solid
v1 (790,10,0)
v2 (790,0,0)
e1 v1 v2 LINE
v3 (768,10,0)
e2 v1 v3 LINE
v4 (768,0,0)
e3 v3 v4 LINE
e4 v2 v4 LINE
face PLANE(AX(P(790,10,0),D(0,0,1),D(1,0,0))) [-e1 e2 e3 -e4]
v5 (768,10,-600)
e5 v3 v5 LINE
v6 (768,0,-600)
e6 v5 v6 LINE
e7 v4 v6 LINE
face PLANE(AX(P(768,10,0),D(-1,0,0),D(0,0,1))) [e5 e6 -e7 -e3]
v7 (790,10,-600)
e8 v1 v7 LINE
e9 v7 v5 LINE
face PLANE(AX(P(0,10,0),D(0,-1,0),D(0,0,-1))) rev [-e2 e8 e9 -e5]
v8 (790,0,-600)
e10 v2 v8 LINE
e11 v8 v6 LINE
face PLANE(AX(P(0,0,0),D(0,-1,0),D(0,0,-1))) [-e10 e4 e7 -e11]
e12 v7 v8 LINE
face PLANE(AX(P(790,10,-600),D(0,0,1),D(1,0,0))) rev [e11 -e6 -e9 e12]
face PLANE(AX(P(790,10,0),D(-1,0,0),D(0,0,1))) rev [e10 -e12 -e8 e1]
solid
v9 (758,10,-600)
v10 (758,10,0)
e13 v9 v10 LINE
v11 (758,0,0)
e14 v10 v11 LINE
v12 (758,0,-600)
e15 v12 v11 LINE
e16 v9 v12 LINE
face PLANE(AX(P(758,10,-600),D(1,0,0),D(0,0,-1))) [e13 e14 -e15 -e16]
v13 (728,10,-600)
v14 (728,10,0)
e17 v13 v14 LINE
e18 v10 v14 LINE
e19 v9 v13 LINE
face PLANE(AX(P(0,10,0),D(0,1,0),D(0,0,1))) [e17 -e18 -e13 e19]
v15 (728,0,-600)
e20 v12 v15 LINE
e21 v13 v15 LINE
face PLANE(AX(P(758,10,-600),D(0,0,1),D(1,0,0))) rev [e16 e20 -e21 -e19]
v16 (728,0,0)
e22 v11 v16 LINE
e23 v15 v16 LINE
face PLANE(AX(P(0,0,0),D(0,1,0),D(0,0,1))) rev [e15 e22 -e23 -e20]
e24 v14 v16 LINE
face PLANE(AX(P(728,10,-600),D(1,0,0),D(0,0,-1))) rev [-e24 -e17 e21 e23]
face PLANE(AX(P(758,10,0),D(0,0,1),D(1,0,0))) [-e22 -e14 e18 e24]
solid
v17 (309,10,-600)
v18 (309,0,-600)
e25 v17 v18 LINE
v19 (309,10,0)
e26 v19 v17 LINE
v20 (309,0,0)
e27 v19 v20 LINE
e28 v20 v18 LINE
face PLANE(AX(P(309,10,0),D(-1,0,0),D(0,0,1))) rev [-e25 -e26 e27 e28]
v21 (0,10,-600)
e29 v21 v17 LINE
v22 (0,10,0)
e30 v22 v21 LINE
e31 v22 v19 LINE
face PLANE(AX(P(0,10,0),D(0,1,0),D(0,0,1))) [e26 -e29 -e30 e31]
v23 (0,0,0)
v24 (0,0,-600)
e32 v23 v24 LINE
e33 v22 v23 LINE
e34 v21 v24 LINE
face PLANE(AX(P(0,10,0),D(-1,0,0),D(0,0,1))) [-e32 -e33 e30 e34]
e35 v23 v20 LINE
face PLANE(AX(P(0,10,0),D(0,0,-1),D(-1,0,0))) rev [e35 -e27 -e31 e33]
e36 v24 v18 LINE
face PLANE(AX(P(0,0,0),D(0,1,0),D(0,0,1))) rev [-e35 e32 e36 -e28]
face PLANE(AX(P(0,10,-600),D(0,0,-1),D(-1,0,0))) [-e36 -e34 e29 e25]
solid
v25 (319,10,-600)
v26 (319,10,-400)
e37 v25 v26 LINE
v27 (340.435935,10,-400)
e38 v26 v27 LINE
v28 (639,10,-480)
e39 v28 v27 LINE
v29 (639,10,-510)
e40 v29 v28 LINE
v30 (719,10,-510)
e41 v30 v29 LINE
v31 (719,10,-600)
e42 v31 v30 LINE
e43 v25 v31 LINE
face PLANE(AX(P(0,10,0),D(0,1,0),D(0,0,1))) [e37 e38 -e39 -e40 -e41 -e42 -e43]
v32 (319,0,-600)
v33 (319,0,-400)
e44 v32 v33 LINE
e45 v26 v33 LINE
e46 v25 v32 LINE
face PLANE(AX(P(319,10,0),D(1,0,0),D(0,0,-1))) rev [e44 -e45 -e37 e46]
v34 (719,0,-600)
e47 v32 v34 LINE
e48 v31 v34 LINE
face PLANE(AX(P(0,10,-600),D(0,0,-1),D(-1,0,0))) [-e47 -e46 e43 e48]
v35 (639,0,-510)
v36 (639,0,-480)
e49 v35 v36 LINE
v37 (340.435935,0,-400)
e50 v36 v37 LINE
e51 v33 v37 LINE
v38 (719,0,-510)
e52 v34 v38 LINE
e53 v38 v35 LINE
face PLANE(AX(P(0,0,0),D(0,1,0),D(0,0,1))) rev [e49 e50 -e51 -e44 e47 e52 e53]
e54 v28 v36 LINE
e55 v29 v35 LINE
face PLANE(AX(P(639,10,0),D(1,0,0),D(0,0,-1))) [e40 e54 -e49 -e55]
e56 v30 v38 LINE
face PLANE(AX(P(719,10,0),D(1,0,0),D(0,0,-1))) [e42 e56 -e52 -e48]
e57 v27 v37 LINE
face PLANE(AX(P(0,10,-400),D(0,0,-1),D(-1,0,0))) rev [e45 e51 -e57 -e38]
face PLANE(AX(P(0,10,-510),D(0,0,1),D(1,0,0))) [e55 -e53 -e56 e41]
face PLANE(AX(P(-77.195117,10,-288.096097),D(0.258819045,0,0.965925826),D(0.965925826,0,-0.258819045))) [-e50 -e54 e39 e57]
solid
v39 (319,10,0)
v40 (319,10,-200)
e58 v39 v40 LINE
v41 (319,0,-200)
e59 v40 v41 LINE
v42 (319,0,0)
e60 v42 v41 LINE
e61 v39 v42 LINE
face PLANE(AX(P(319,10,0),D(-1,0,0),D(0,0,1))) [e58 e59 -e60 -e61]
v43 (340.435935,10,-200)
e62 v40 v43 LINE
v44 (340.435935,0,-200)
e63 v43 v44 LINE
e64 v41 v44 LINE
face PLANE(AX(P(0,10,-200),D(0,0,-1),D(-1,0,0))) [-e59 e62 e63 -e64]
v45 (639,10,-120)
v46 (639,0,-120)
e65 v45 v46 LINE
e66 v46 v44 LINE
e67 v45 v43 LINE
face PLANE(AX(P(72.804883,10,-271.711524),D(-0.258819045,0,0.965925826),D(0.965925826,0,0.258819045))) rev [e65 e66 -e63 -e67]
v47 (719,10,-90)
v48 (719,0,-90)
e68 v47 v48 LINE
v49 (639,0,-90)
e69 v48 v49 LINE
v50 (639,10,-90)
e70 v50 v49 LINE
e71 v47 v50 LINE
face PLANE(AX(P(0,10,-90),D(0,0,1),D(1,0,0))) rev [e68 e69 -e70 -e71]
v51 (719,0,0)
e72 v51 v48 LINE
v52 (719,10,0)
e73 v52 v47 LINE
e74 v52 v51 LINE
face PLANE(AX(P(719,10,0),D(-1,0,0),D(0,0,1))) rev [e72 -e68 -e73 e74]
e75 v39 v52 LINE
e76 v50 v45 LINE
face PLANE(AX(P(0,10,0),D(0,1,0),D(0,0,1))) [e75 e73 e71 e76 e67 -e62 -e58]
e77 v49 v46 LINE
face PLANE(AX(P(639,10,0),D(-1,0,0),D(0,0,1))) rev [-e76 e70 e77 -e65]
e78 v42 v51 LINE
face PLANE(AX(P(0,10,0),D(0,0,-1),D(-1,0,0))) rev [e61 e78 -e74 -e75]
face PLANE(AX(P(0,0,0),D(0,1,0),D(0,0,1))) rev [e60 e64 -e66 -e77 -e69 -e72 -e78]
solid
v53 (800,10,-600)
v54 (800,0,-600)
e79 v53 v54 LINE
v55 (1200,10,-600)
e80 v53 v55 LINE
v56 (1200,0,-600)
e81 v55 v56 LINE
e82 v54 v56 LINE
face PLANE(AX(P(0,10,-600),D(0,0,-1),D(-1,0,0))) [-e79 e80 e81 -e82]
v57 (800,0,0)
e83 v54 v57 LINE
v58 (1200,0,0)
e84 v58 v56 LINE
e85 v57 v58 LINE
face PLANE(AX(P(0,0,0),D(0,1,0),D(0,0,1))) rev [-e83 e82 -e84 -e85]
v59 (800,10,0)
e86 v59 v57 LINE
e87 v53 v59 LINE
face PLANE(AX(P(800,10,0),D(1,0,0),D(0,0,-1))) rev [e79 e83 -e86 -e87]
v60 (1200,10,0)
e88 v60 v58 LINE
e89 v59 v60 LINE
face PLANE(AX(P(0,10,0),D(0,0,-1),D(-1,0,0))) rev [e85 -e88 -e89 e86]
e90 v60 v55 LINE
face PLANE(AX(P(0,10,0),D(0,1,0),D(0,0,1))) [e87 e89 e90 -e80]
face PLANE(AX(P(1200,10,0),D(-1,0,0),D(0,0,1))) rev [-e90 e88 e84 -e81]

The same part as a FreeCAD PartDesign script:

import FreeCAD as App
import Part
import Sketcher
Q = App.Units.Quantity


def add_polygon(sketch, points):
    """Adds a closed chain of lines whose ends are joined by coincident constraints."""
    first, n = sketch.GeometryCount, len(points)
    for a, b in zip(points, points[1:] + points[:1]):
        sketch.addGeometry(Part.LineSegment(App.Vector(*a, 0), App.Vector(*b, 0)), False)
    for i in range(n):
        sketch.addConstraint(Sketcher.Constraint("Coincident", first + i, 2, first + (i + 1) % n, 1))

doc = App.newDocument("Part")
body = doc.addObject("PartDesign::Body", "Body")

sketch1 = doc.addObject("Sketcher::SketchObject", "Sketch")
body.addObject(sketch1)
sketch1.AttachmentSupport = (doc.XZ_Plane, [""])
sketch1.MapMode = "FlatFace"
add_polygon(sketch1, [(0, -600), (0, 0), (309, 0), (309, -600)])
sketch1.addConstraint([
    Sketcher.Constraint("Vertical", 0),
    Sketcher.Constraint("Horizontal", 1),
    Sketcher.Constraint("Vertical", 2),
    Sketcher.Constraint("Horizontal", 3),
    Sketcher.Constraint("Coincident", 0, 2, -1, 1),
    Sketcher.Constraint("DistanceX", 1, 1, 1, 2, Q("309 mm")),
    Sketcher.Constraint("DistanceY", 0, 1, 0, 2, Q("600 mm")),
])
pad1 = doc.addObject("PartDesign::Pad", "Pad")
body.addObject(pad1)
pad1.Profile = sketch1
pad1.Length = 10
pad1.Reversed = True
body2 = doc.addObject("PartDesign::Body", "Body001")

sketch2 = doc.addObject("Sketcher::SketchObject", "Sketch001")
body2.addObject(sketch2)
sketch2.AttachmentSupport = (doc.getObject("XZ_Plane001"), [""])
sketch2.MapMode = "FlatFace"
add_polygon(sketch2, [(719, -510), (719, -600), (319, -600), (319, -400), (340, -400), (639, -480), (639, -510)])
sketch2.addConstraint([
    Sketcher.Constraint("Vertical", 0),
    Sketcher.Constraint("Horizontal", 1),
    Sketcher.Constraint("Vertical", 2),
    Sketcher.Constraint("Horizontal", 3),
    Sketcher.Constraint("Vertical", 5),
    Sketcher.Constraint("Horizontal", 6),
    Sketcher.Constraint("DistanceX", 1, 2, 1, 1, Q("400 mm")),
    Sketcher.Constraint("DistanceX", 6, 1, 6, 2, Q("80 mm")),
    Sketcher.Constraint("DistanceY", 0, 2, 0, 1, Q("90 mm")),
    Sketcher.Constraint("DistanceY", 2, 1, 2, 2, Q("200 mm")),
    Sketcher.Constraint("DistanceY", 5, 2, 5, 1, Q("30 mm")),
    Sketcher.Constraint("Angle", 4, Q("-15 deg")),
    Sketcher.Constraint("DistanceX", -1, 1, 0, 2, Q("719 mm")),
    Sketcher.Constraint("DistanceY", 0, 2, -1, 1, Q("600 mm")),
])
pad2 = doc.addObject("PartDesign::Pad", "Pad001")
body2.addObject(pad2)
pad2.Profile = sketch2
pad2.Length = 10
pad2.Reversed = True
body3 = doc.addObject("PartDesign::Body", "Body002")

sketch3 = doc.addObject("Sketcher::SketchObject", "Sketch002")
body3.addObject(sketch3)
sketch3.AttachmentSupport = (doc.getObject("XZ_Plane002"), [""])
sketch3.MapMode = "FlatFace"
add_polygon(sketch3, [(800, -600), (800, 0), (1200, 0), (1200, -600)])
sketch3.addConstraint([
    Sketcher.Constraint("Vertical", 0),
    Sketcher.Constraint("Horizontal", 1),
    Sketcher.Constraint("Vertical", 2),
    Sketcher.Constraint("Horizontal", 3),
    Sketcher.Constraint("PointOnObject", 0, 2, -1),
    Sketcher.Constraint("DistanceX", 1, 1, 1, 2, Q("400 mm")),
    Sketcher.Constraint("DistanceY", 0, 1, 0, 2, Q("600 mm")),
    Sketcher.Constraint("DistanceX", -1, 1, 0, 2, Q("800 mm")),
])
pad3 = doc.addObject("PartDesign::Pad", "Pad002")
body3.addObject(pad3)
pad3.Profile = sketch3
pad3.Length = 10
pad3.Reversed = True
body4 = doc.addObject("PartDesign::Body", "Body003")

sketch4 = doc.addObject("Sketcher::SketchObject", "Sketch003")
body4.addObject(sketch4)
sketch4.AttachmentSupport = (doc.getObject("XZ_Plane003"), [""])
sketch4.MapMode = "FlatFace"
add_polygon(sketch4, [(719, 0), (719, -90), (639, -90), (639, -120), (340, -200), (319, -200), (319, 0)])
sketch4.addConstraint([
    Sketcher.Constraint("Vertical", 0),
    Sketcher.Constraint("Horizontal", 1),
    Sketcher.Constraint("Vertical", 2),
    Sketcher.Constraint("Horizontal", 4),
    Sketcher.Constraint("Vertical", 5),
    Sketcher.Constraint("Horizontal", 6),
    Sketcher.Constraint("PointOnObject", 5, 2, -1),
    Sketcher.Constraint("DistanceX", 1, 2, 1, 1, Q("80 mm")),
    Sketcher.Constraint("DistanceX", 6, 1, 6, 2, Q("400 mm")),
    Sketcher.Constraint("DistanceY", 0, 2, 0, 1, Q("90 mm")),
    Sketcher.Constraint("DistanceY", 2, 2, 2, 1, Q("30 mm")),
    Sketcher.Constraint("DistanceY", 5, 1, 5, 2, Q("200 mm")),
    Sketcher.Constraint("Angle", 3, Q("-165 deg")),
    Sketcher.Constraint("DistanceX", -1, 1, 0, 2, Q("719 mm")),
])
pad4 = doc.addObject("PartDesign::Pad", "Pad003")
body4.addObject(pad4)
pad4.Profile = sketch4
pad4.Length = 10
pad4.Reversed = True
body5 = doc.addObject("PartDesign::Body", "Body004")

sketch5 = doc.addObject("Sketcher::SketchObject", "Sketch004")
body5.addObject(sketch5)
sketch5.AttachmentSupport = (doc.getObject("XZ_Plane004"), [""])
sketch5.MapMode = "FlatFace"
add_polygon(sketch5, [(768, -600), (768, 0), (790, 0), (790, -600)])
sketch5.addConstraint([
    Sketcher.Constraint("Vertical", 0),
    Sketcher.Constraint("Horizontal", 1),
    Sketcher.Constraint("Vertical", 2),
    Sketcher.Constraint("Horizontal", 3),
    Sketcher.Constraint("PointOnObject", 0, 2, -1),
    Sketcher.Constraint("DistanceX", 1, 1, 1, 2, Q("22 mm")),
    Sketcher.Constraint("DistanceY", 0, 1, 0, 2, Q("600 mm")),
    Sketcher.Constraint("DistanceX", -1, 1, 0, 2, Q("768 mm")),
])
pad5 = doc.addObject("PartDesign::Pad", "Pad004")
body5.addObject(pad5)
pad5.Profile = sketch5
pad5.Length = 10
pad5.Reversed = True
body6 = doc.addObject("PartDesign::Body", "Body005")

sketch6 = doc.addObject("Sketcher::SketchObject", "Sketch005")
body6.addObject(sketch6)
sketch6.AttachmentSupport = (doc.getObject("XZ_Plane005"), [""])
sketch6.MapMode = "FlatFace"
add_polygon(sketch6, [(728, -600), (728, 0), (758, 0), (758, -600)])
sketch6.addConstraint([
    Sketcher.Constraint("Vertical", 0),
    Sketcher.Constraint("Horizontal", 1),
    Sketcher.Constraint("Vertical", 2),
    Sketcher.Constraint("Horizontal", 3),
    Sketcher.Constraint("PointOnObject", 0, 2, -1),
    Sketcher.Constraint("DistanceX", 1, 1, 1, 2, Q("30 mm")),
    Sketcher.Constraint("DistanceY", 0, 1, 0, 2, Q("600 mm")),
    Sketcher.Constraint("DistanceX", -1, 1, 0, 2, Q("728 mm")),
])
pad6 = doc.addObject("PartDesign::Pad", "Pad005")
body6.addObject(pad6)
pad6.Profile = sketch6
pad6.Length = 10
pad6.Reversed = True

doc.recompute()
